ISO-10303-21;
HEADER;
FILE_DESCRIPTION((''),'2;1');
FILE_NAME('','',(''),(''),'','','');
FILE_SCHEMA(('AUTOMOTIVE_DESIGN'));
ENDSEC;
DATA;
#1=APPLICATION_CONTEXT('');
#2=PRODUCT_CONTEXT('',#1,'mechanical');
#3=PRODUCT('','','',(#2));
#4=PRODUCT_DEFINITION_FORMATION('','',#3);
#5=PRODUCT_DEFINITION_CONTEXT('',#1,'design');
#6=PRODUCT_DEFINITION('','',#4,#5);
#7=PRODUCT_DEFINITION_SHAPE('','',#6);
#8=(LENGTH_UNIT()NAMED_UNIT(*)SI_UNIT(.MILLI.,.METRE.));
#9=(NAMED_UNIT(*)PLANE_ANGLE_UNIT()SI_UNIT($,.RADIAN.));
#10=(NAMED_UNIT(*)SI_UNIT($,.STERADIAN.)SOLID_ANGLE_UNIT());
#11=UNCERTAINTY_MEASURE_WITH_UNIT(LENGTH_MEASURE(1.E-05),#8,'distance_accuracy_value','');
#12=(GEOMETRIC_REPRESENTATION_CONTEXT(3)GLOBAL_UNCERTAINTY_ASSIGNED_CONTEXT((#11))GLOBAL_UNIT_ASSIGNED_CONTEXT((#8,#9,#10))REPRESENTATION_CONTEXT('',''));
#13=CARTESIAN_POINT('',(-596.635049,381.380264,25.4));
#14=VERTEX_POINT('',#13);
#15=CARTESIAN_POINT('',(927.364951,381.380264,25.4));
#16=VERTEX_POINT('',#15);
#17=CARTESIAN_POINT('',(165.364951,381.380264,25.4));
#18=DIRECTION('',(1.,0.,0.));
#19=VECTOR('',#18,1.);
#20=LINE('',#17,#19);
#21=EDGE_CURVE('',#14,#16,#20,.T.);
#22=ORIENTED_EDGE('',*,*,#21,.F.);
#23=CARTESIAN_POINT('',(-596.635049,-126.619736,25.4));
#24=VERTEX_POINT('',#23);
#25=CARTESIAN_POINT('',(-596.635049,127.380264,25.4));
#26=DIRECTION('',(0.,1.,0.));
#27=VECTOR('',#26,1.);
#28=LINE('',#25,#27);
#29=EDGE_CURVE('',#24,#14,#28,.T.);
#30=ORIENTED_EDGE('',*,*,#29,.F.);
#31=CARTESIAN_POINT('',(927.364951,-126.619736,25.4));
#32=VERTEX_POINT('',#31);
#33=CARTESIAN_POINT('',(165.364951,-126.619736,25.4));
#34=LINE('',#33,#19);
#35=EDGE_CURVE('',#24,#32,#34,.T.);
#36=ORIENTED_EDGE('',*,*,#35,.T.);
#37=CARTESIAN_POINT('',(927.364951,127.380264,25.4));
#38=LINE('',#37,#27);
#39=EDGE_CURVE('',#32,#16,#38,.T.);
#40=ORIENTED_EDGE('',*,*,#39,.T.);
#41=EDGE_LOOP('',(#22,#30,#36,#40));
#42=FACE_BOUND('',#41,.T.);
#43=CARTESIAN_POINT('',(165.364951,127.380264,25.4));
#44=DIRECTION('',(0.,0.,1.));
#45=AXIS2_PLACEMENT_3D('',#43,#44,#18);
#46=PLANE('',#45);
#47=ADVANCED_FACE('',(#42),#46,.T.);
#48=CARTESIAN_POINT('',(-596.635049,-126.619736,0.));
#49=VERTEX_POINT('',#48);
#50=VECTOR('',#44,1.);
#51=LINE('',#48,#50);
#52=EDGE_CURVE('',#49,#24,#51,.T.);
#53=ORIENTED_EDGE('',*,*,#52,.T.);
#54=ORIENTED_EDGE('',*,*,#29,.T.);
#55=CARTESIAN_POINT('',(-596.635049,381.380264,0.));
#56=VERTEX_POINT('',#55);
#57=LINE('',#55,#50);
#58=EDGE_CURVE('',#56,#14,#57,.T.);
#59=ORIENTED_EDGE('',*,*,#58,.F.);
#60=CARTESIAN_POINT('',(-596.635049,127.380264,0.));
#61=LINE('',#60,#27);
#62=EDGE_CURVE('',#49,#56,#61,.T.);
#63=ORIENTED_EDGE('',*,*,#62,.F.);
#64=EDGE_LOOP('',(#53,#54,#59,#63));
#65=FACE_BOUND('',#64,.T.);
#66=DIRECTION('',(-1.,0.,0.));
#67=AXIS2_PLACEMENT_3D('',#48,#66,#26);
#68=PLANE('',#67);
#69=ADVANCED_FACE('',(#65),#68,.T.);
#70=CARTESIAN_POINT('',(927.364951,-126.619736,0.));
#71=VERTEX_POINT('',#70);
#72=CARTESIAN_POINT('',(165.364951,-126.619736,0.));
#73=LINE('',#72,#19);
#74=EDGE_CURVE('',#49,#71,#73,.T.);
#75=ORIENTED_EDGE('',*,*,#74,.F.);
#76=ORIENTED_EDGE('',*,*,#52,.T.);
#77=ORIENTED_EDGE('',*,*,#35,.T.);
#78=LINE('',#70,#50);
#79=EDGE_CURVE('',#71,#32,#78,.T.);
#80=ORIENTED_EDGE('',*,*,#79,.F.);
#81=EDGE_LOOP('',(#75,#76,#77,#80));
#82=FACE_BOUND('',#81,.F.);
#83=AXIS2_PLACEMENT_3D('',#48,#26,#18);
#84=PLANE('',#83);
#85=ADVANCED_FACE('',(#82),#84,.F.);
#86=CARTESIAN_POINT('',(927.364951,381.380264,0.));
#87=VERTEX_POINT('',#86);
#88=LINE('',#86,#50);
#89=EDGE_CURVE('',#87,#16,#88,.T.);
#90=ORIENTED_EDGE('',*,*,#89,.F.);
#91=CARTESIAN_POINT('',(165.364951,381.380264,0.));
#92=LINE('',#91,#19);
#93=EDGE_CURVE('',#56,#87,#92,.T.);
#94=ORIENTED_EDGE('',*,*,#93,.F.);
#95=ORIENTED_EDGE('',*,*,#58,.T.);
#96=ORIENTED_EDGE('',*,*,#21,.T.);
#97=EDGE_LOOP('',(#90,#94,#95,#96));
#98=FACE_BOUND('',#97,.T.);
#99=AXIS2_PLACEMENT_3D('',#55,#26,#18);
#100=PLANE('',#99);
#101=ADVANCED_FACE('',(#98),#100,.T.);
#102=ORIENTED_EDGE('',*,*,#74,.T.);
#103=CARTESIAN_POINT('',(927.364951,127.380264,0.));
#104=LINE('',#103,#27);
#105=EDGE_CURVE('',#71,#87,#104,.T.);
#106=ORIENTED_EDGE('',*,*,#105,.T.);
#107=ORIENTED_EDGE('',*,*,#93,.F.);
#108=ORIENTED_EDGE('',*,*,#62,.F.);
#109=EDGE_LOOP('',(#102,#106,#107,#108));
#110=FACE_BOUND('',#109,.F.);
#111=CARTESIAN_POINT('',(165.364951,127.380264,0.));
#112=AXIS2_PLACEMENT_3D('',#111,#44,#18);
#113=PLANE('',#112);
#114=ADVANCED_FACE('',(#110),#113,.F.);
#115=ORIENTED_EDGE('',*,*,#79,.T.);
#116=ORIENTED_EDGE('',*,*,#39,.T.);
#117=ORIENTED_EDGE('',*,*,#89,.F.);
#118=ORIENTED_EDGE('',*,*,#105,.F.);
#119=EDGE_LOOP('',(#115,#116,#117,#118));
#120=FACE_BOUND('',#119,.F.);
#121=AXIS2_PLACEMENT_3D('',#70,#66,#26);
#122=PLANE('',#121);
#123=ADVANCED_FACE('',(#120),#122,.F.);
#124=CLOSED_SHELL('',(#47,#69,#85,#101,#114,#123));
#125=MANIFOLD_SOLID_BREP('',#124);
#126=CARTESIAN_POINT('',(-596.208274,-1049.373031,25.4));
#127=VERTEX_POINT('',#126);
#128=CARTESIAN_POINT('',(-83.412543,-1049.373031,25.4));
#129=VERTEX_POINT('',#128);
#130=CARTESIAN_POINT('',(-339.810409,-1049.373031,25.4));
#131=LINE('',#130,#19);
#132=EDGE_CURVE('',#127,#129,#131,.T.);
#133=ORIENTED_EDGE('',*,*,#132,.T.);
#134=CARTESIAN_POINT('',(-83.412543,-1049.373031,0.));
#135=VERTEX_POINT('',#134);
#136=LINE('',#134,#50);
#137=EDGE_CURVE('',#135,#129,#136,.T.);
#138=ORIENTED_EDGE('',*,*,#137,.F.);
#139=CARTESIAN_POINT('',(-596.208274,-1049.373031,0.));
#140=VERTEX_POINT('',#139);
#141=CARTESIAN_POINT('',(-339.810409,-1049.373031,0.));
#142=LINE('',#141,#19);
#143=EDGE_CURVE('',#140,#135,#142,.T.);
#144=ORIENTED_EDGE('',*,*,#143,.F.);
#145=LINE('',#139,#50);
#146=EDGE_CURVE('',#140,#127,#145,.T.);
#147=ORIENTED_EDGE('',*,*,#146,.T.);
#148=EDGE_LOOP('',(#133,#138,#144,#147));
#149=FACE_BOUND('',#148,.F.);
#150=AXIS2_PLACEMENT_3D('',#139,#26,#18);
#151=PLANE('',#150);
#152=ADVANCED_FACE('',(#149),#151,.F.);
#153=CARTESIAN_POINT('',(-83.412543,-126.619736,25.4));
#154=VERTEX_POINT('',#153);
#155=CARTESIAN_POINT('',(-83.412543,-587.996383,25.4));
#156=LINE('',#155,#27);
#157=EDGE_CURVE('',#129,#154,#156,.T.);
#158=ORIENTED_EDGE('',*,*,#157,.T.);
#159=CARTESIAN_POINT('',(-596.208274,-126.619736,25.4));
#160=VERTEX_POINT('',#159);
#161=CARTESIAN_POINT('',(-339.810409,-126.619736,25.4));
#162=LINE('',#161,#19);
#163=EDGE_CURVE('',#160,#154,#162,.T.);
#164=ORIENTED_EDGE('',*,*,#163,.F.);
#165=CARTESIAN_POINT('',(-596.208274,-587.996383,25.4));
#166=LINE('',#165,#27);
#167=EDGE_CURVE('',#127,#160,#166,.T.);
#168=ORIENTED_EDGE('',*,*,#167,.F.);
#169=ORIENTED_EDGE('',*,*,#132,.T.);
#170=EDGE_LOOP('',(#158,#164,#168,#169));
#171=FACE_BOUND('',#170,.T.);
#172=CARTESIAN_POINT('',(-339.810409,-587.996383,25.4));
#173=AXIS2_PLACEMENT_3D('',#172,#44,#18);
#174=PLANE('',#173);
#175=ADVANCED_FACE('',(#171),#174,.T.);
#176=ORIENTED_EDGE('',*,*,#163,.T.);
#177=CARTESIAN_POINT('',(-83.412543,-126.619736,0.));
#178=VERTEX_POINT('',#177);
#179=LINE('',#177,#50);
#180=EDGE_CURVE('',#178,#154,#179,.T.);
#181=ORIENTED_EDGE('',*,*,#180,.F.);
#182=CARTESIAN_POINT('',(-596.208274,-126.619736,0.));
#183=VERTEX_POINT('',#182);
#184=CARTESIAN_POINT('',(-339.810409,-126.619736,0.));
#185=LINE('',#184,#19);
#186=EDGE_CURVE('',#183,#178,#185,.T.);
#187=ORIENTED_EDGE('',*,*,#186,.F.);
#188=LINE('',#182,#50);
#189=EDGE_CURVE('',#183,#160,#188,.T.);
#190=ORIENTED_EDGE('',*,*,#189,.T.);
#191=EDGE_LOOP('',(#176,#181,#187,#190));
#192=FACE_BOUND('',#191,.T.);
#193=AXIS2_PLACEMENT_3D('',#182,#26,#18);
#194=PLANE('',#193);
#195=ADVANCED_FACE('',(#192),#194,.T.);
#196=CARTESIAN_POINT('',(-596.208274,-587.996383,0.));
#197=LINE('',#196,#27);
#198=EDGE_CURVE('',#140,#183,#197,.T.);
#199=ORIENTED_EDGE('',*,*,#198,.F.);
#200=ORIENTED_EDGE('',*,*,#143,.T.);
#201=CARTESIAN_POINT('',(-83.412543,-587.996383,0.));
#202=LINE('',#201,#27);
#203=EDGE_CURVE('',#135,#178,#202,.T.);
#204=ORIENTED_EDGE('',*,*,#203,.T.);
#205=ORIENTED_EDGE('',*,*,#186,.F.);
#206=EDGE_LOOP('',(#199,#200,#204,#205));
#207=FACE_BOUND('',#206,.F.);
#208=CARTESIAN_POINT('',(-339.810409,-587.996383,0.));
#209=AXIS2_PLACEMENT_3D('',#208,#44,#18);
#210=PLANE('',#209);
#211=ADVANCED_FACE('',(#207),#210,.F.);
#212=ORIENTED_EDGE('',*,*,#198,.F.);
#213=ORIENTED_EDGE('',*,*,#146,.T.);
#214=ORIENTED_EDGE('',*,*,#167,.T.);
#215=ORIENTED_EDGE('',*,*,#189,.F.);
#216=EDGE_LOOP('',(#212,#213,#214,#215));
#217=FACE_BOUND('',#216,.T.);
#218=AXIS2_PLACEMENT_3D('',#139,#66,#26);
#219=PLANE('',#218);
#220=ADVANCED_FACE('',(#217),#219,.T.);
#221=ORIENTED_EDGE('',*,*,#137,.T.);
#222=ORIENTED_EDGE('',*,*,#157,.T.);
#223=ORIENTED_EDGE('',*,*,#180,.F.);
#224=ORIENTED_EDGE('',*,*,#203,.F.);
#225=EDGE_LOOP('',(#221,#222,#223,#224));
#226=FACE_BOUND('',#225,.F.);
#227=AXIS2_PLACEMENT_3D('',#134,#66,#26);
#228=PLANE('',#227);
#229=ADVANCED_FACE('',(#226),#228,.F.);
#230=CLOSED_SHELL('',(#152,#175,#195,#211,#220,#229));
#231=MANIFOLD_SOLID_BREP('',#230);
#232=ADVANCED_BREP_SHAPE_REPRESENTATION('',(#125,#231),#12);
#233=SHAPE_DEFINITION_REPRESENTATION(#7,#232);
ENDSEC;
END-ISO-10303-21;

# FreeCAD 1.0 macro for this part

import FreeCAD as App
import Part
import Sketcher

V = App.Vector
Q = App.Units.Quantity

doc = App.newDocument("Part")
params = doc.addObject("Spreadsheet::Sheet", "Params")
for row, (alias, value) in enumerate([
    ("pad1_length", "1 in"),
    ("sketch2_width", "60 in"),
    ("sketch2_height", "20 in"),
    ("pad2_length", "1 in"),
], start=1):
    params.set(f"A{row}", alias)
    params.set(f"B{row}", "=" + value)
    params.setAlias(f"B{row}", alias)

body = doc.addObject("PartDesign::Body", "Body")

sketch1 = body.newObject("Sketcher::SketchObject", "Sketch")
sketch1.AttachmentSupport = (doc.getObject("XY_Plane"), [""])
sketch1.MapMode = "FlatFace"
sketch1.addGeometry([
    Part.LineSegment(V(-596, -127, 0), V(-596, -1049, 0)),
    Part.LineSegment(V(-596, -1049, 0), V(-83, -1049, 0)),
    Part.LineSegment(V(-83, -1049, 0), V(-83, -127, 0)),
    Part.LineSegment(V(-83, -127, 0), V(-596, -127, 0)),
], False)
sketch1.addConstraint([
    Sketcher.Constraint("Coincident", 0, 2, 1, 1),
    Sketcher.Constraint("Coincident", 1, 2, 2, 1),
    Sketcher.Constraint("Coincident", 2, 2, 3, 1),
    Sketcher.Constraint("Coincident", 3, 2, 0, 1),
    Sketcher.Constraint("Vertical", 0),
    Sketcher.Constraint("Horizontal", 1),
    Sketcher.Constraint("Vertical", 2),
    Sketcher.Constraint("Horizontal", 3),
    Sketcher.Constraint("DistanceX", 1, 1, 1, 2, 512.795731),
    Sketcher.Constraint("DistanceY", 0, 2, 0, 1, 922.753294),
    Sketcher.Constraint("DistanceY", 0, 2, -1, 1, 1049.373031),
    Sketcher.Constraint("DistanceX", 0, 2, -1, 1, 596.208274),
])
pad1 = body.newObject("PartDesign::Pad", "Pad")
pad1.Profile = sketch1
pad1.setExpression("Length", "Params.pad1_length")
body2 = doc.addObject("PartDesign::Body", "Body001")

sketch2 = body2.newObject("Sketcher::SketchObject", "Sketch001")
sketch2.AttachmentSupport = (doc.getObject("XY_Plane001"), [""])
sketch2.MapMode = "FlatFace"
sketch2.addGeometry([
    Part.LineSegment(V(-597, 381, 0), V(-597, -127, 0)),
    Part.LineSegment(V(-597, -127, 0), V(927, -127, 0)),
    Part.LineSegment(V(927, -127, 0), V(927, 381, 0)),
    Part.LineSegment(V(927, 381, 0), V(-597, 381, 0)),
], False)
sketch2.addConstraint([
    Sketcher.Constraint("Coincident", 0, 2, 1, 1),
    Sketcher.Constraint("Coincident", 1, 2, 2, 1),
    Sketcher.Constraint("Coincident", 2, 2, 3, 1),
    Sketcher.Constraint("Coincident", 3, 2, 0, 1),
    Sketcher.Constraint("Vertical", 0),
    Sketcher.Constraint("Horizontal", 1),
    Sketcher.Constraint("Vertical", 2),
    Sketcher.Constraint("Horizontal", 3),
    Sketcher.Constraint("DistanceX", 1, 1, 1, 2, Q("60 in")),
    Sketcher.Constraint("DistanceY", 0, 2, 0, 1, Q("20 in")),
    Sketcher.Constraint("DistanceX", 0, 2, -1, 1, 596.635049),
    Sketcher.Constraint("DistanceY", 0, 2, -1, 1, 126.619736),
])
sketch2.setExpression("Constraints[8]", "Params.sketch2_width")
sketch2.setExpression("Constraints[9]", "Params.sketch2_height")
pad2 = body2.newObject("PartDesign::Pad", "Pad001")
pad2.Profile = sketch2
pad2.setExpression("Length", "Params.pad2_length")

doc.recompute()
